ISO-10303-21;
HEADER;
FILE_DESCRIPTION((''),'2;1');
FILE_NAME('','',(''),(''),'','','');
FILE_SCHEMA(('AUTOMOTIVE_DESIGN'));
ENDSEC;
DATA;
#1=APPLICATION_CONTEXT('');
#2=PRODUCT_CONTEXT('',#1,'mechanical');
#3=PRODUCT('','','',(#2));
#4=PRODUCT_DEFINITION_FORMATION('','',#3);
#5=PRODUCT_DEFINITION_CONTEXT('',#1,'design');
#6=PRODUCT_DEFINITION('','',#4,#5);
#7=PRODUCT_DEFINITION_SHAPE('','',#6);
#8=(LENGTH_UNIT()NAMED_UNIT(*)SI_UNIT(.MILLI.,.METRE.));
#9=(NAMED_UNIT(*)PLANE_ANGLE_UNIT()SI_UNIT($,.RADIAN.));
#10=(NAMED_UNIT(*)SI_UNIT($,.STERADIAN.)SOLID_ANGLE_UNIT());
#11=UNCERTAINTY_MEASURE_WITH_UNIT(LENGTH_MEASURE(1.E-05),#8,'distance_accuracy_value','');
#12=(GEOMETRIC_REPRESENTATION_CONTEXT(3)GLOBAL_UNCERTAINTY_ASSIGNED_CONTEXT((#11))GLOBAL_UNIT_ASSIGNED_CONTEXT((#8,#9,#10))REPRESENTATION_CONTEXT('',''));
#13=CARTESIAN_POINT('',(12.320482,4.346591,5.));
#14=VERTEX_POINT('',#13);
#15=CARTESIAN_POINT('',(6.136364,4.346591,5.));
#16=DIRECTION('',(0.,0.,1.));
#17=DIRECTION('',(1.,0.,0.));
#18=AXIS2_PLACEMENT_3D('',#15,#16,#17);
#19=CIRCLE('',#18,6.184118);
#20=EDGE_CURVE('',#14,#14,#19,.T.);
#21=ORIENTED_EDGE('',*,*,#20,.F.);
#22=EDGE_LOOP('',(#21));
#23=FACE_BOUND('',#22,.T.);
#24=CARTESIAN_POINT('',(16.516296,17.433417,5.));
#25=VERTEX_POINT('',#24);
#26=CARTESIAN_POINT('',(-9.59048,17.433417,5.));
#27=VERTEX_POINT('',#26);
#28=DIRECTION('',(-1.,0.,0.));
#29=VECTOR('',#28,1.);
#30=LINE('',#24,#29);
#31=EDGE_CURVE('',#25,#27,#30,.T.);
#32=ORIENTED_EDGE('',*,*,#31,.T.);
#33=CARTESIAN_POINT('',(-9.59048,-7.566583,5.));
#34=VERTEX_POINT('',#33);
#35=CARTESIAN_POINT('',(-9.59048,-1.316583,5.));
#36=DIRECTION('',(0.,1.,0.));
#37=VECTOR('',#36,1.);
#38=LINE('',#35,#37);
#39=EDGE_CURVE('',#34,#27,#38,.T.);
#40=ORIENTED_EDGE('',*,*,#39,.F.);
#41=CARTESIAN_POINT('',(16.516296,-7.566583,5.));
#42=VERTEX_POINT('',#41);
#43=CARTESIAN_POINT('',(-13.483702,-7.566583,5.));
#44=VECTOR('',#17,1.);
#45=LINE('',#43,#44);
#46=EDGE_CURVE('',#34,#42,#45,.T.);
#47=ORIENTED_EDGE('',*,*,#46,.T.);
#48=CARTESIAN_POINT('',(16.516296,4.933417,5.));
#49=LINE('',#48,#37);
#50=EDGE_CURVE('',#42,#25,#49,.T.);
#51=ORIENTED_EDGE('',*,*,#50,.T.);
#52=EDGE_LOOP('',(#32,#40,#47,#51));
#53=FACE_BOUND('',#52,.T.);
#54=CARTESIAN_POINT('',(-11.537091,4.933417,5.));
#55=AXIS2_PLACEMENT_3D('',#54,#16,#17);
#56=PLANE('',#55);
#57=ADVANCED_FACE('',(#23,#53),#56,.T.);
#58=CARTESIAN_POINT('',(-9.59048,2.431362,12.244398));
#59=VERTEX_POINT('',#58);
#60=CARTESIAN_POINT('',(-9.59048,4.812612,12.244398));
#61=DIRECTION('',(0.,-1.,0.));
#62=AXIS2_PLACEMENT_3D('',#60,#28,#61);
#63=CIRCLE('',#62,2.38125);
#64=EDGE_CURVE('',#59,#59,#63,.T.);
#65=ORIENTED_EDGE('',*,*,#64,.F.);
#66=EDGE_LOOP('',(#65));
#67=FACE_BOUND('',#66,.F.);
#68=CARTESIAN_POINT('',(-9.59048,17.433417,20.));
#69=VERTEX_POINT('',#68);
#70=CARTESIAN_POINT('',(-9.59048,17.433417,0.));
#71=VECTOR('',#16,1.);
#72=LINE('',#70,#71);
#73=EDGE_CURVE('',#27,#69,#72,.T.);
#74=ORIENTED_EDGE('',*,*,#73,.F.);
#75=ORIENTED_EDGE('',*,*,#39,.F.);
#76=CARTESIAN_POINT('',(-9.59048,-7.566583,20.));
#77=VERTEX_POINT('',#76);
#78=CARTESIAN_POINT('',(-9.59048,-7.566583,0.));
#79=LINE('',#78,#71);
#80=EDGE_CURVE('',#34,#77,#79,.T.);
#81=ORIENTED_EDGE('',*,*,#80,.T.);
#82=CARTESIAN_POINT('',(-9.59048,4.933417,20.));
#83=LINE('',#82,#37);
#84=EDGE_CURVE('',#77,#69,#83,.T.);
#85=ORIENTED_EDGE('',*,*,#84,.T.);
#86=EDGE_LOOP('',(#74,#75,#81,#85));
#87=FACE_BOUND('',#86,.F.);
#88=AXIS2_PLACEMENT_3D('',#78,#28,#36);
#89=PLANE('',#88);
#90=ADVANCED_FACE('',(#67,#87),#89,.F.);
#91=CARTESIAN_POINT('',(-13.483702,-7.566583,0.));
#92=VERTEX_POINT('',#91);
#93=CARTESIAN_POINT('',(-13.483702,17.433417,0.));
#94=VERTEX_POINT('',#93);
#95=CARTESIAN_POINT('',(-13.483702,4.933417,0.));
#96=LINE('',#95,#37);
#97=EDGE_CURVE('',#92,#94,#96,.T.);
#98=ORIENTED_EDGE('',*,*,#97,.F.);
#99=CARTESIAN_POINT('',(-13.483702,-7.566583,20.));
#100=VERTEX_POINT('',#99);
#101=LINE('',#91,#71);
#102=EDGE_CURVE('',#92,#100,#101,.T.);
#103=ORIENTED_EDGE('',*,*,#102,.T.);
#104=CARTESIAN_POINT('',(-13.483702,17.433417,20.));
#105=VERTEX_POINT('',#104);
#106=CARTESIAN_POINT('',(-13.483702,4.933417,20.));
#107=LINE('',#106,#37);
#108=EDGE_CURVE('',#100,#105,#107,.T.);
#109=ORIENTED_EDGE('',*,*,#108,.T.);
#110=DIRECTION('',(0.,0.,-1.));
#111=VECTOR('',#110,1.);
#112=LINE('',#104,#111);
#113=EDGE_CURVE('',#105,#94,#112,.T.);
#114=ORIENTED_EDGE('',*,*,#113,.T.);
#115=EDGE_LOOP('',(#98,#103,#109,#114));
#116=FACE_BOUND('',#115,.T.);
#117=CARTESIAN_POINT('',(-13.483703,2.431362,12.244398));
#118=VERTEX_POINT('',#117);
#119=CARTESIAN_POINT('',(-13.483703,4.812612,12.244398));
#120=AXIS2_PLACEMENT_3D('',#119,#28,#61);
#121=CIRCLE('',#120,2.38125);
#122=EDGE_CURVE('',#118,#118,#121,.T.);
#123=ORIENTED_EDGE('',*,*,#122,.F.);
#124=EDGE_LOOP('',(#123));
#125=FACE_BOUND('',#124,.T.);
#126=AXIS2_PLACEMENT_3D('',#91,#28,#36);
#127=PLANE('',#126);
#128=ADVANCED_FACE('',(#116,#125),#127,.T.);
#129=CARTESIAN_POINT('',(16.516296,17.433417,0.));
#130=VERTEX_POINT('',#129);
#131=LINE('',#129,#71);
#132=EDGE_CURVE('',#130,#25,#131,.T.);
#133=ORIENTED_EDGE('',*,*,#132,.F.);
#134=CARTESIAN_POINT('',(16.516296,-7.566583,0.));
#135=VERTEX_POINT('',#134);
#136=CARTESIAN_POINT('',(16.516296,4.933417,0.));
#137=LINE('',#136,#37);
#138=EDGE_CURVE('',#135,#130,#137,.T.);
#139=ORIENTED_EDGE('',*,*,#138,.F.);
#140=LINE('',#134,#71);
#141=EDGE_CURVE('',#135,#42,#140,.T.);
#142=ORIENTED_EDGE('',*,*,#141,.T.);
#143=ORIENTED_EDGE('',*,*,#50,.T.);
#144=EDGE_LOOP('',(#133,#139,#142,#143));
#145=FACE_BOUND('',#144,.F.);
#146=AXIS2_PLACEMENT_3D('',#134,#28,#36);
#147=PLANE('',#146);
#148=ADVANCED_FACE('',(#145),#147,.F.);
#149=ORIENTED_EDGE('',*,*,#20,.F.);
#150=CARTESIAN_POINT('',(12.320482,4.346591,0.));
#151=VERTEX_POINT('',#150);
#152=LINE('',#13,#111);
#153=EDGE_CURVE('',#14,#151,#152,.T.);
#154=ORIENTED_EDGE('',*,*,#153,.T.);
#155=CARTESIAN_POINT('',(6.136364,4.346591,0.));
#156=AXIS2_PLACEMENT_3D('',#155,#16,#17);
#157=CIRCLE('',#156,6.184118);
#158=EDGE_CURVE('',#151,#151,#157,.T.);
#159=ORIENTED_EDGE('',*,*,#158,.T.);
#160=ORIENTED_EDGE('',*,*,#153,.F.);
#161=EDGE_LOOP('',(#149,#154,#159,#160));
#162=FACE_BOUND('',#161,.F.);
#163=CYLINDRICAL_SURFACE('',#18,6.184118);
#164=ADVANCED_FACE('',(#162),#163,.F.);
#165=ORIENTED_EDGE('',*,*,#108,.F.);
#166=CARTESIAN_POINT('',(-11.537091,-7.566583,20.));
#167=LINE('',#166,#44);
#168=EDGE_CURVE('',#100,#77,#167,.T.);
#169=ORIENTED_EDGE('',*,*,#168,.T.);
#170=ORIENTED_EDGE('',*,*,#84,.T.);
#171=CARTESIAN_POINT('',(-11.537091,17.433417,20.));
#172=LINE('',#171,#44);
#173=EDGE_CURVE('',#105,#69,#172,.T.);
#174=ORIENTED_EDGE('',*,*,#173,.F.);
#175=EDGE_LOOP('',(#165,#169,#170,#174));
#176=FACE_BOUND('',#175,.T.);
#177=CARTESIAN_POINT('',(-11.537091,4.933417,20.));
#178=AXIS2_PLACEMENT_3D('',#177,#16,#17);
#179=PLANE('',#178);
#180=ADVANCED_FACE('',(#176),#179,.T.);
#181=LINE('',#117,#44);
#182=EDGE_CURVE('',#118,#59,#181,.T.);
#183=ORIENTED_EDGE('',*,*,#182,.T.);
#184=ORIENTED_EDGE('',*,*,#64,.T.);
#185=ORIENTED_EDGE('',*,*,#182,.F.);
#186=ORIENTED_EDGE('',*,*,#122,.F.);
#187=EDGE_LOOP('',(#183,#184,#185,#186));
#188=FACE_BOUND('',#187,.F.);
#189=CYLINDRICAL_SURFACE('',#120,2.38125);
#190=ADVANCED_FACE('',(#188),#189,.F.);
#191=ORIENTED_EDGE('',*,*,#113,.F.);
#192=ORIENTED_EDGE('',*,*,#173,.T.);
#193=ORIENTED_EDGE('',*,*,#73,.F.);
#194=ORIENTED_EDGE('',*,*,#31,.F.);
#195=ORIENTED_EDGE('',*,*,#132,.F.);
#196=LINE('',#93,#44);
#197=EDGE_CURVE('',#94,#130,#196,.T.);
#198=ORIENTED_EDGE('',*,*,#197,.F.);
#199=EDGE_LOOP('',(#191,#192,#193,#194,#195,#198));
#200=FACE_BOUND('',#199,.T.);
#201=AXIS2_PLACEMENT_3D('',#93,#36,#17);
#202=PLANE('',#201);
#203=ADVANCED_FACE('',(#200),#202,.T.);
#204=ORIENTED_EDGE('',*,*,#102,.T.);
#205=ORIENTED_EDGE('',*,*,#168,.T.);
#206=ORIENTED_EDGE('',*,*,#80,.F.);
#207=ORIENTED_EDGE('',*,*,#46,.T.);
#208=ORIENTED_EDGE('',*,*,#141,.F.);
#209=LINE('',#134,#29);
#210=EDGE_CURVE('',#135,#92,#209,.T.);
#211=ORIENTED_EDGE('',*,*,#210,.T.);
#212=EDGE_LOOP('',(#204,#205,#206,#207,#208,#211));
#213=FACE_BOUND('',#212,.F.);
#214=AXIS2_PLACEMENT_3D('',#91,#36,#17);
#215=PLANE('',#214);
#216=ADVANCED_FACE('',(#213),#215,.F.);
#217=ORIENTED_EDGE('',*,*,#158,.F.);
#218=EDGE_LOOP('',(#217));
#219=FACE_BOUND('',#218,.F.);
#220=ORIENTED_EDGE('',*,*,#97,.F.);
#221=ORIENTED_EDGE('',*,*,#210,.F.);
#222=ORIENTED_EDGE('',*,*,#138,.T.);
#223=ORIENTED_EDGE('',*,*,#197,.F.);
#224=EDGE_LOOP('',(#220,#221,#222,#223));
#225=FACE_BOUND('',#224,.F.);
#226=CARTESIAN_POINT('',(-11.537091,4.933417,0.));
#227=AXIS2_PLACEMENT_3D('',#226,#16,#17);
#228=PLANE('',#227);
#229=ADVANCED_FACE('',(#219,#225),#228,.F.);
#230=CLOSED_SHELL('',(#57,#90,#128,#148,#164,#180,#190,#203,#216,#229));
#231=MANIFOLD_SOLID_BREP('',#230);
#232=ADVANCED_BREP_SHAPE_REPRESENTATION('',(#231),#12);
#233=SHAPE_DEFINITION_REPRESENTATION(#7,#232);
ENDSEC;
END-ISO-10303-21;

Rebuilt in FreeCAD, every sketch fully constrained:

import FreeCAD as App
import Part
import Sketcher
from FreeCAD import Vector


def add_polygon(sketch, points):
    """Adds a closed chain of lines whose ends are joined by coincident constraints."""
    first, n = sketch.GeometryCount, len(points)
    for a, b in zip(points, points[1:] + points[:1]):
        sketch.addGeometry(Part.LineSegment(App.Vector(*a, 0), App.Vector(*b, 0)), False)
    for i in range(n):
        sketch.addConstraint(Sketcher.Constraint("Coincident", first + i, 2, first + (i + 1) % n, 1))

doc = App.newDocument("Part")
body = doc.addObject("PartDesign::Body", "Body")

sketch1 = body.newObject("Sketcher::SketchObject", "Sketch")
sketch1.AttachmentSupport = (doc.getObject("XY_Plane"), [""])
sketch1.MapMode = "FlatFace"
add_polygon(sketch1, [(-13.5, 17.4), (-13.5, -7.6), (-9.6, -7.6), (-9.6, 17.4)])
sketch1.addConstraint([
    Sketcher.Constraint("Vertical", 0),
    Sketcher.Constraint("Horizontal", 1),
    Sketcher.Constraint("Vertical", 2),
    Sketcher.Constraint("Horizontal", 3),
    Sketcher.Constraint("DistanceY", 0, 2, 0, 1, 25.0),
    Sketcher.Constraint("DistanceX", 1, 1, 1, 2, 3.893223),
    Sketcher.Constraint("DistanceX", 1, 2, -1, 1, 9.59048),
    Sketcher.Constraint("DistanceY", 0, 2, -1, 1, 7.566583),
])
pad1 = body.newObject("PartDesign::Pad", "Pad")
pad1.Profile = sketch1
pad1.Length = 20

sketch2 = body.newObject("Sketcher::SketchObject", "Sketch001")
sketch2.AttachmentSupport = (doc.getObject("XY_Plane"), [""])
sketch2.MapMode = "FlatFace"
add_polygon(sketch2, [(-13, 17), (-13, -8), (17, -8), (17, 17)])
sketch2.addConstraint([
    Sketcher.Constraint("Vertical", 0),
    Sketcher.Constraint("Horizontal", 1),
    Sketcher.Constraint("Vertical", 2),
    Sketcher.Constraint("Horizontal", 3),
    Sketcher.Constraint("DistanceX", 1, 1, 1, 2, 29.999999),
    Sketcher.Constraint("DistanceY", 0, 2, 0, 1, 25.0),
    Sketcher.Constraint("DistanceX", 0, 2, -1, 1, 13.483702),
    Sketcher.Constraint("DistanceY", 0, 2, -1, 1, 7.566583),
])
pad2 = body.newObject("PartDesign::Pad", "Pad001")
pad2.Profile = sketch2
pad2.Length = 5

sketch3 = body.newObject("Sketcher::SketchObject", "Sketch002")
sketch3.AttachmentSupport = (doc.getObject("YZ_Plane"), [""])
sketch3.MapMode = "FlatFace"
sketch3.AttachmentOffset = App.Placement(Vector(0, 0, -13.483703), App.Rotation())
sketch3.addGeometry(Part.Circle(Vector(4.8, 12.2, 0), Vector(0, 0, 1), 2.4), False)
sketch3.addConstraint([
    Sketcher.Constraint("Diameter", 0, 4.7625),
    Sketcher.Constraint("DistanceX", -1, 1, 0, 3, 4.812612),
    Sketcher.Constraint("DistanceY", -1, 1, 0, 3, 12.244398),
])
pocket1 = body.newObject("PartDesign::Pocket", "Pocket")
pocket1.Profile = sketch3
pocket1.Length = 25
pocket1.Reversed = True

sketch4 = body.newObject("Sketcher::SketchObject", "Sketch003")
sketch4.AttachmentSupport = (doc.getObject("XY_Plane"), [""])
sketch4.MapMode = "FlatFace"
sketch4.AttachmentOffset = App.Placement(Vector(0, 0, 5), App.Rotation())
sketch4.addGeometry(Part.Circle(Vector(6, 4, 0), Vector(0, 0, 1), 6), False)
sketch4.addConstraint([
    Sketcher.Constraint("Diameter", 0, 12.368236),
    Sketcher.Constraint("DistanceY", -1, 1, 0, 3, 4.346591),
    Sketcher.Constraint("DistanceX", -1, 1, 0, 3, 6.136364),
])
pocket2 = body.newObject("PartDesign::Pocket", "Pocket001")
pocket2.Profile = sketch4
pocket2.Length = 6

doc.recompute()
